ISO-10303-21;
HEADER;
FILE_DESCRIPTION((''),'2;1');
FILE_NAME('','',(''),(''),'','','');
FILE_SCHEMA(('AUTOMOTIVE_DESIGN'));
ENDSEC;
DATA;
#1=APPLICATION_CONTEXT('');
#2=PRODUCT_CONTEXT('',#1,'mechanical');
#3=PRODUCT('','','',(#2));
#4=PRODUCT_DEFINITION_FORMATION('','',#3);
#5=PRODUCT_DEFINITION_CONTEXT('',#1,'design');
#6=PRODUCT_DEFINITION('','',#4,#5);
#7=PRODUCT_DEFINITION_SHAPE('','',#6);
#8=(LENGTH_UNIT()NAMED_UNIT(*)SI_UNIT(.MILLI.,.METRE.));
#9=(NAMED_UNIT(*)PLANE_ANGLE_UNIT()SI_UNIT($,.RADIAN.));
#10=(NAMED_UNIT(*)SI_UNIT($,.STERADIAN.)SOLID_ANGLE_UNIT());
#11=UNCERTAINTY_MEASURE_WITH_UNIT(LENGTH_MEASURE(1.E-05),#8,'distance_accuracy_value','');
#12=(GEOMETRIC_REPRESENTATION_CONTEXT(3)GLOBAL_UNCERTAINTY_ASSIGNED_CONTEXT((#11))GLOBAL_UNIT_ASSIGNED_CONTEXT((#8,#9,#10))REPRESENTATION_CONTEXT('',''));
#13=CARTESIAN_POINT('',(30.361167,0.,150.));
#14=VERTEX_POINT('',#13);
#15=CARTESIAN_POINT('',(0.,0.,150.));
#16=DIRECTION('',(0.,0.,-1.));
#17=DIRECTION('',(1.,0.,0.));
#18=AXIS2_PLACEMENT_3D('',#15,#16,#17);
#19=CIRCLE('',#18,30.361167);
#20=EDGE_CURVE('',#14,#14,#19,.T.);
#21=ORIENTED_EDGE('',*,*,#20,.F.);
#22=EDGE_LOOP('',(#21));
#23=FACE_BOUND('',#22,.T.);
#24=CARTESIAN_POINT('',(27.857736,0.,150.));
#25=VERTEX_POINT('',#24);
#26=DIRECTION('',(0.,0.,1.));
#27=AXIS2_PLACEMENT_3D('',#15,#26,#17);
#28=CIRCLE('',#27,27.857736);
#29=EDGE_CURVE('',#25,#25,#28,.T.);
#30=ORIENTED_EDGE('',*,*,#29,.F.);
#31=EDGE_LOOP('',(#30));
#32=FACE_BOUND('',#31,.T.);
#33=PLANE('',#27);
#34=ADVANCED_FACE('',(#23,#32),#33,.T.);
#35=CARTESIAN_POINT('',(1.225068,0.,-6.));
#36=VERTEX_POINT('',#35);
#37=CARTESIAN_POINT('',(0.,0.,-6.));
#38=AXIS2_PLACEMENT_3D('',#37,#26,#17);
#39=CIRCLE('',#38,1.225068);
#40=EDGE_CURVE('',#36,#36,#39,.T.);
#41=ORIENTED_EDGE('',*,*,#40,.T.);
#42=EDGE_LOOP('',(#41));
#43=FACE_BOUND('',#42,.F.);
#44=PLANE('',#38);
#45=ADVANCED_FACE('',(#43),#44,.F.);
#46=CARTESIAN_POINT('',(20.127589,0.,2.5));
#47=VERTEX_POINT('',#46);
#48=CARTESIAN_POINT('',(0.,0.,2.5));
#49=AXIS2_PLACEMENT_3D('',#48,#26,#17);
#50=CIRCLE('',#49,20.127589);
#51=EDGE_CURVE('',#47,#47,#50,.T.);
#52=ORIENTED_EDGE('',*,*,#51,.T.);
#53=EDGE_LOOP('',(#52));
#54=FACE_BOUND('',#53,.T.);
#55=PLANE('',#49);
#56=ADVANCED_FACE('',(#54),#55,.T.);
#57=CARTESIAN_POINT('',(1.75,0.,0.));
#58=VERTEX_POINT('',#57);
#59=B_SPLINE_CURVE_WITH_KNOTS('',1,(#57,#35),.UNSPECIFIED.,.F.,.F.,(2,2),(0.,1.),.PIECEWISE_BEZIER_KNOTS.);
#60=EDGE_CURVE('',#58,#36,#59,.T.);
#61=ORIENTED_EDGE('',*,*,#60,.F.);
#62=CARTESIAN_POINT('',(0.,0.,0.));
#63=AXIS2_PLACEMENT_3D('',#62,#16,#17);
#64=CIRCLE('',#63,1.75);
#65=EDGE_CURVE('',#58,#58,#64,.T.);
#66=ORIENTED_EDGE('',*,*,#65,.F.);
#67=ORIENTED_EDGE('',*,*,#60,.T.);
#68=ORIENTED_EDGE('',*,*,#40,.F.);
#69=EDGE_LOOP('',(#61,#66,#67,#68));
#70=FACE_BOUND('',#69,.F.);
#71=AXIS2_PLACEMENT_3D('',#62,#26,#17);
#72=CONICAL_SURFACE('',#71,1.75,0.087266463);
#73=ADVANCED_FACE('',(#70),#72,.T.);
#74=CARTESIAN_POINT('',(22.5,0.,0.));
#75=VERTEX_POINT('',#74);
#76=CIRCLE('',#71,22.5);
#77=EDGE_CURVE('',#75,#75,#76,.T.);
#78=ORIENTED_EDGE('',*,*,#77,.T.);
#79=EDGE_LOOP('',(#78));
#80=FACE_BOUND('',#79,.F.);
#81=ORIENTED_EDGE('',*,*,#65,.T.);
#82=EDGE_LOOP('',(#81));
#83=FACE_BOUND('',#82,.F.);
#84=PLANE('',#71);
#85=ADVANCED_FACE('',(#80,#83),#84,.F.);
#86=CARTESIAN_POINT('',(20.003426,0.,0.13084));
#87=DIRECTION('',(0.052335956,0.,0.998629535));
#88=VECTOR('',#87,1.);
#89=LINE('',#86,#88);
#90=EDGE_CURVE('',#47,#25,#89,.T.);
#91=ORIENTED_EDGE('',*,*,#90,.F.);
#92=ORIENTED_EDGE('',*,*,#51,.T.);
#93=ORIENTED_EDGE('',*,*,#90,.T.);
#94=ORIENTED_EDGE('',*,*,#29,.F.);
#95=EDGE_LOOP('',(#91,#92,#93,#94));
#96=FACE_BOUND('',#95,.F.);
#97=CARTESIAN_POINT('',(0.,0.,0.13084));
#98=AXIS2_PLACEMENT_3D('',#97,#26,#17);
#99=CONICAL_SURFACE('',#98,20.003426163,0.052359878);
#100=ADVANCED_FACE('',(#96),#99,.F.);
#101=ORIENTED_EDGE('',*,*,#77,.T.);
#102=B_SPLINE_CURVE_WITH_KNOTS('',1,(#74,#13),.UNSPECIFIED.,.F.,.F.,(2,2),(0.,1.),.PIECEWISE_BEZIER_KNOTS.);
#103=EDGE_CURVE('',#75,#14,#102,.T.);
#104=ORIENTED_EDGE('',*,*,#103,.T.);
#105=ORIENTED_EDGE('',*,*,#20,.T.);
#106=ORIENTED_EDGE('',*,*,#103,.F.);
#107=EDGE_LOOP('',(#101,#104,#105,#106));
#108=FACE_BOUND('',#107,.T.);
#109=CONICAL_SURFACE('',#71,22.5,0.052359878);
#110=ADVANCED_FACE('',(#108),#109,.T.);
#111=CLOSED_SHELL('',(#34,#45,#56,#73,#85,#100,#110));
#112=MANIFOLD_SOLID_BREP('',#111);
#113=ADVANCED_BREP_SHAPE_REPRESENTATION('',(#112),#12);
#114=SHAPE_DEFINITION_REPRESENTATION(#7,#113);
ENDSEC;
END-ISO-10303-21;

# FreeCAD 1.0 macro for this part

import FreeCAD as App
import Part
import Sketcher
from FreeCAD import Vector


def faces_at(feature, points):
    """Names of the faces that lie closest to the given points."""
    faces = feature.Shape.Faces
    near = lambda p: min(range(len(faces)), key=lambda i: faces[i].distToShape(Part.Vertex(*p))[0])
    return sorted({f"Face{near(p) + 1}" for p in points})

doc = App.newDocument("Part")
body = doc.addObject("PartDesign::Body", "Body")

sketch1 = body.newObject("Sketcher::SketchObject", "Sketch")
sketch1.AttachmentSupport = (doc.getObject("XY_Plane"), [""])
sketch1.MapMode = "FlatFace"
sketch1.addGeometry(Part.Circle(Vector(0, 0, 0), Vector(0, 0, 1), 22), False)
sketch1.addConstraint(Sketcher.Constraint("Coincident", 0, 3, -1, 1))
sketch1.addConstraint(Sketcher.Constraint("Diameter", 0, 45.0))
pad1 = body.newObject("PartDesign::Pad", "Pad")
pad1.Profile = sketch1
pad1.Length = 150
pad1.TaperAngle = 3
doc.recompute()

thickness = body.newObject("PartDesign::Thickness", "Thickness")
thickness.Base = (pad1, faces_at(pad1, [(0, 0, 150)]))
thickness.Value = 2.5
thickness.Reversed = True
thickness.Join = "Intersection"

sketch2 = body.newObject("Sketcher::SketchObject", "Sketch001")
sketch2.AttachmentSupport = (doc.getObject("XY_Plane"), [""])
sketch2.MapMode = "FlatFace"
sketch2.addGeometry(Part.Circle(Vector(0, 0, 0), Vector(0, 0, 1), 1.8), False)
sketch2.addConstraint(Sketcher.Constraint("Coincident", 0, 3, -1, 1))
sketch2.addConstraint(Sketcher.Constraint("Diameter", 0, 3.5))
pad2 = body.newObject("PartDesign::Pad", "Pad001")
pad2.Profile = sketch2
pad2.Length = 6
pad2.Reversed = True
pad2.TaperAngle = -5

doc.recompute()
